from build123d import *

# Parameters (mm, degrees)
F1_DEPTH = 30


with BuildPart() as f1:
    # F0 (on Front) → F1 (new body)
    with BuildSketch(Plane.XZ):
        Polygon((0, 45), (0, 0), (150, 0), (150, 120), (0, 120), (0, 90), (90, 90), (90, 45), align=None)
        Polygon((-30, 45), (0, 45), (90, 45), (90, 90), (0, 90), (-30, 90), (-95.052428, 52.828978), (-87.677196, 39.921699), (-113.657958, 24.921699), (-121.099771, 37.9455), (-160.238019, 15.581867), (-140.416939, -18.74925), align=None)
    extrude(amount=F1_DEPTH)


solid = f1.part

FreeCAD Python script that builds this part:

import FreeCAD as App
import Part
import Sketcher

V = App.Vector
Q = App.Units.Quantity


def add_polygon(sketch, points):
    """Adds a closed chain of lines whose ends are joined by coincident constraints."""
    first, n = sketch.GeometryCount, len(points)
    for a, b in zip(points, points[1:] + points[:1]):
        sketch.addGeometry(Part.LineSegment(App.Vector(*a, 0), App.Vector(*b, 0)), False)
    for i in range(n):
        sketch.addConstraint(Sketcher.Constraint("Coincident", first + i, 2, first + (i + 1) % n, 1))

doc = App.newDocument("Part")
body = doc.addObject("PartDesign::Body", "Body")

# Sketch on XZ plane
sketch1 = body.newObject("Sketcher::SketchObject", "Sketch")
sketch1.AttachmentSupport = (doc.getObject("XZ_Plane"), [""])
sketch1.MapMode = "FlatFace"
add_polygon(sketch1, [(0, 45), (0, 0), (150, 0), (150, 120), (0, 120), (0, 90), (-30, 90), (-95, 53), (-88, 40), (-114, 25), (-121, 38), (-160, 16), (-140, -19), (-30, 45)])  # lines 0-13
sketch1.addConstraint(Sketcher.Constraint("Vertical", 0))
sketch1.addConstraint(Sketcher.Constraint("Horizontal", 1))
sketch1.addConstraint(Sketcher.Constraint("Vertical", 2))
sketch1.addConstraint(Sketcher.Constraint("Horizontal", 3))
sketch1.addConstraint(Sketcher.Constraint("Vertical", 4))
sketch1.addConstraint(Sketcher.Constraint("Horizontal", 5))
sketch1.addConstraint(Sketcher.Constraint("Horizontal", 13))
sketch1.addConstraint(Sketcher.Constraint("Coincident", 0, 2, -1, 1))
sketch1.addConstraint(Sketcher.Constraint("PointOnObject", 3, 2, -2))
sketch1.addConstraint(Sketcher.Constraint("Perpendicular", 6, 7))
sketch1.addConstraint(Sketcher.Constraint("Parallel", 7, 9))
sketch1.addConstraint(Sketcher.Constraint("Perpendicular", 9, 10))
sketch1.addConstraint(Sketcher.Constraint("Perpendicular", 8, 11))
sketch1.addConstraint(Sketcher.Constraint("Perpendicular", 11, 12))
sketch1.addConstraint(Sketcher.Constraint("Vertical", 5, 2, 12, 2))
sketch1.addConstraint(Sketcher.Constraint("Equal", 13, 4))
sketch1.addConstraint(Sketcher.Constraint("DistanceX", 1, 1, 1, 2, 150.0))
sketch1.addConstraint(Sketcher.Constraint("DistanceX", 5, 2, 5, 1, 30.0))
sketch1.addConstraint(Sketcher.Constraint("DistanceY", 0, 2, 0, 1, 45.0))
sketch1.addConstraint(Sketcher.Constraint("DistanceY", 2, 1, 2, 2, 120.0))
sketch1.addConstraint(Sketcher.Constraint("Angle", 8, Q("-150 deg")))
sketch1.addConstraint(Sketcher.Constraint("Distance", 8, 30.0))
sketch1.addConstraint(Sketcher.Constraint("Distance", 9, 14.999999))
sketch1.addConstraint(Sketcher.Constraint("Distance", 12, 127.498499))
sketch1.addConstraint(Sketcher.Constraint("DistanceY", -1, 1, 7, 2, 39.921699))
sketch1.addConstraint(Sketcher.Constraint("DistanceY", -1, 1, 9, 2, 37.9455))
sketch1.addConstraint(Sketcher.Constraint("Distance", 11, 39.642159))
pad1 = body.newObject("PartDesign::Pad", "Pad")
pad1.Profile = sketch1
pad1.Length = 30

doc.recompute()
